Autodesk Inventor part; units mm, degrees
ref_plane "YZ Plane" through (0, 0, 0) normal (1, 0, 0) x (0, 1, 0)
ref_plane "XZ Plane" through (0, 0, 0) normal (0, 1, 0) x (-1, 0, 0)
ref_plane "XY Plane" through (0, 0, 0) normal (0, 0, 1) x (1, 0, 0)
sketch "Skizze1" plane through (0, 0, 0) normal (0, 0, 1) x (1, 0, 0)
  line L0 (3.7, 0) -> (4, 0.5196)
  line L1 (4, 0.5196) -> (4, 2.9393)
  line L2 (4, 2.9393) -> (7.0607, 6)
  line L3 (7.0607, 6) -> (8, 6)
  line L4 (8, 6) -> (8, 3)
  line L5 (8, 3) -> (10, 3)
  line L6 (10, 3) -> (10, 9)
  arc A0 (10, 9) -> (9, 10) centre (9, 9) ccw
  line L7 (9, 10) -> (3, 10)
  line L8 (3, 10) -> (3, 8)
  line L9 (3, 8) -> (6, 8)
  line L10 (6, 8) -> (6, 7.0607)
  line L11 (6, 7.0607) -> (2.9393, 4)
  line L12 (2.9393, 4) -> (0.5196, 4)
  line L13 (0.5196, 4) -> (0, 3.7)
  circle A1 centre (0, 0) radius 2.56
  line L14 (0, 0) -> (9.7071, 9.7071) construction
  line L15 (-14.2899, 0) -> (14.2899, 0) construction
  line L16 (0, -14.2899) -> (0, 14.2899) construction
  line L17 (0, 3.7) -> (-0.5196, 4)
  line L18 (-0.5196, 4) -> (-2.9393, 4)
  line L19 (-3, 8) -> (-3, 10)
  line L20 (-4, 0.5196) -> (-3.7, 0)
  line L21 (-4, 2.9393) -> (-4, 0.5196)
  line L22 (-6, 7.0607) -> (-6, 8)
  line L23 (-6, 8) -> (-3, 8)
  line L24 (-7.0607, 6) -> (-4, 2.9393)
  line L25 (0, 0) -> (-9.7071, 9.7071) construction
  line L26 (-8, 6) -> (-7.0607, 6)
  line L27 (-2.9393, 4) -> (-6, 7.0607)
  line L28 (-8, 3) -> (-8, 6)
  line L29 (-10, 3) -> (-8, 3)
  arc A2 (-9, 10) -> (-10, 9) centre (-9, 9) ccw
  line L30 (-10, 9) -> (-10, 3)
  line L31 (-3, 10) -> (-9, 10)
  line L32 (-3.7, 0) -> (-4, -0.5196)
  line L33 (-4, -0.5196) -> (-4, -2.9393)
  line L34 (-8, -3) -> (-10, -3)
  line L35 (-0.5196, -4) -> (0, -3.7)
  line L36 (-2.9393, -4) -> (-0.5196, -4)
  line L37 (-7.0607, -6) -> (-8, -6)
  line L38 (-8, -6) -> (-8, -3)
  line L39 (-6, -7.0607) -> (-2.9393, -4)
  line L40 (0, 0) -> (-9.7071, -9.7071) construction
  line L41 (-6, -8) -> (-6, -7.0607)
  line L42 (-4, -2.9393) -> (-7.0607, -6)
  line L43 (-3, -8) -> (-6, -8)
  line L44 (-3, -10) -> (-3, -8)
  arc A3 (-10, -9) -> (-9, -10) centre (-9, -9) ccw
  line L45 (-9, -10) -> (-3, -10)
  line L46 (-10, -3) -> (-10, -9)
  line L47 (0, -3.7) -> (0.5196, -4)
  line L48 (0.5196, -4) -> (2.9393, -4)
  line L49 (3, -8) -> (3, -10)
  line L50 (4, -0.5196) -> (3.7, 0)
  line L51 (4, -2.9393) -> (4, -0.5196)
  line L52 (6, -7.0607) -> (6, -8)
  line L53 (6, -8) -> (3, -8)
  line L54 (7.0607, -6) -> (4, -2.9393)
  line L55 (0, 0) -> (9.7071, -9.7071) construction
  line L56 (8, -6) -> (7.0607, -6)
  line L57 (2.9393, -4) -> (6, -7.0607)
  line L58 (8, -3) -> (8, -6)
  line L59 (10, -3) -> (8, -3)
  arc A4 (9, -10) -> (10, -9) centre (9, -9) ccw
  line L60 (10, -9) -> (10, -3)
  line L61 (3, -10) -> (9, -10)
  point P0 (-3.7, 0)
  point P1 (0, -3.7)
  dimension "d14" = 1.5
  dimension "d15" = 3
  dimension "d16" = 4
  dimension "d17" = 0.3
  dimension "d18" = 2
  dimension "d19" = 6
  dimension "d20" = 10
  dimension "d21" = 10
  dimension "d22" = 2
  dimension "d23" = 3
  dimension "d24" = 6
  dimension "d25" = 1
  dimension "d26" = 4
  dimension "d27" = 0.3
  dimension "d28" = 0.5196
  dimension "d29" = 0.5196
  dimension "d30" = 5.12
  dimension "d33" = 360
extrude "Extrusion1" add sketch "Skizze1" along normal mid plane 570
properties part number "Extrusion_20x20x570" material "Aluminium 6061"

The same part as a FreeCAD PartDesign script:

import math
import FreeCAD as App
import Part
import Sketcher

V = App.Vector
Q = App.Units.Quantity

doc = App.newDocument("Part")
body = doc.addObject("PartDesign::Body", "Body")

sketch1 = doc.addObject("Sketcher::SketchObject", "Sketch")
body.addObject(sketch1)
sketch1.AttachmentSupport = (doc.XY_Plane, [""])
sketch1.MapMode = "FlatFace"
sketch1.addGeometry(Part.LineSegment(V(4, -0.5, 0), V(3.7, 0, 0)), False)
sketch1.addGeometry(Part.LineSegment(V(3.7, 0, 0), V(4, 0.5, 0)), False)
sketch1.addGeometry(Part.LineSegment(V(4, 0.5, 0), V(4, 2.9, 0)), False)
sketch1.addGeometry(Part.LineSegment(V(4, 2.9, 0), V(7.1, 6, 0)), False)
sketch1.addGeometry(Part.LineSegment(V(7.1, 6, 0), V(8, 6, 0)), False)
sketch1.addGeometry(Part.LineSegment(V(8, 6, 0), V(8, 3, 0)), False)
sketch1.addGeometry(Part.LineSegment(V(8, 3, 0), V(10, 3, 0)), False)
sketch1.addGeometry(Part.LineSegment(V(10, 3, 0), V(10, 9, 0)), False)
sketch1.addGeometry(Part.ArcOfCircle(Part.Circle(V(9, 9, 0), V(0, 0, 1), 1), math.radians(0), math.radians(90)), False)
sketch1.addGeometry(Part.LineSegment(V(9, 10, 0), V(3, 10, 0)), False)
sketch1.addGeometry(Part.LineSegment(V(3, 10, 0), V(3, 8, 0)), False)
sketch1.addGeometry(Part.LineSegment(V(3, 8, 0), V(6, 8, 0)), False)
sketch1.addGeometry(Part.LineSegment(V(6, 8, 0), V(6, 7.1, 0)), False)
sketch1.addGeometry(Part.LineSegment(V(6, 7.1, 0), V(2.9, 4, 0)), False)
sketch1.addGeometry(Part.LineSegment(V(2.9, 4, 0), V(0.5, 4, 0)), False)
sketch1.addGeometry(Part.LineSegment(V(0.5, 4, 0), V(0, 3.7, 0)), False)
sketch1.addGeometry(Part.LineSegment(V(0, 3.7, 0), V(-0.5, 4, 0)), False)
sketch1.addGeometry(Part.LineSegment(V(-0.5, 4, 0), V(-2.9, 4, 0)), False)
sketch1.addGeometry(Part.LineSegment(V(-2.9, 4, 0), V(-6, 7.1, 0)), False)
sketch1.addGeometry(Part.LineSegment(V(-6, 7.1, 0), V(-6, 8, 0)), False)
sketch1.addGeometry(Part.LineSegment(V(-6, 8, 0), V(-3, 8, 0)), False)
sketch1.addGeometry(Part.LineSegment(V(-3, 8, 0), V(-3, 10, 0)), False)
sketch1.addGeometry(Part.LineSegment(V(-3, 10, 0), V(-9, 10, 0)), False)
sketch1.addGeometry(Part.ArcOfCircle(Part.Circle(V(-9, 9, 0), V(0, 0, 1), 1), math.radians(90), math.radians(180)), False)
sketch1.addGeometry(Part.LineSegment(V(-10, 9, 0), V(-10, 3, 0)), False)
sketch1.addGeometry(Part.LineSegment(V(-10, 3, 0), V(-8, 3, 0)), False)
sketch1.addGeometry(Part.LineSegment(V(-8, 3, 0), V(-8, 6, 0)), False)
sketch1.addGeometry(Part.LineSegment(V(-8, 6, 0), V(-7.1, 6, 0)), False)
sketch1.addGeometry(Part.LineSegment(V(-7.1, 6, 0), V(-4, 2.9, 0)), False)
sketch1.addGeometry(Part.LineSegment(V(-4, 2.9, 0), V(-4, 0.5, 0)), False)
sketch1.addGeometry(Part.LineSegment(V(-4, 0.5, 0), V(-3.7, 0, 0)), False)
sketch1.addGeometry(Part.LineSegment(V(-3.7, 0, 0), V(-4, -0.5, 0)), False)
sketch1.addGeometry(Part.LineSegment(V(-4, -0.5, 0), V(-4, -2.9, 0)), False)
sketch1.addGeometry(Part.LineSegment(V(-4, -2.9, 0), V(-7.1, -6, 0)), False)
sketch1.addGeometry(Part.LineSegment(V(-7.1, -6, 0), V(-8, -6, 0)), False)
sketch1.addGeometry(Part.LineSegment(V(-8, -6, 0), V(-8, -3, 0)), False)
sketch1.addGeometry(Part.LineSegment(V(-8, -3, 0), V(-10, -3, 0)), False)
sketch1.addGeometry(Part.LineSegment(V(-10, -3, 0), V(-10, -9, 0)), False)
sketch1.addGeometry(Part.ArcOfCircle(Part.Circle(V(-9, -9, 0), V(0, 0, 1), 1), math.radians(180), math.radians(270)), False)
sketch1.addGeometry(Part.LineSegment(V(-9, -10, 0), V(-3, -10, 0)), False)
sketch1.addGeometry(Part.LineSegment(V(-3, -10, 0), V(-3, -8, 0)), False)
sketch1.addGeometry(Part.LineSegment(V(-3, -8, 0), V(-6, -8, 0)), False)
sketch1.addGeometry(Part.LineSegment(V(-6, -8, 0), V(-6, -7.1, 0)), False)
sketch1.addGeometry(Part.LineSegment(V(-6, -7.1, 0), V(-2.9, -4, 0)), False)
sketch1.addGeometry(Part.LineSegment(V(-2.9, -4, 0), V(-0.5, -4, 0)), False)
sketch1.addGeometry(Part.LineSegment(V(-0.5, -4, 0), V(0, -3.7, 0)), False)
sketch1.addGeometry(Part.LineSegment(V(0, -3.7, 0), V(0.5, -4, 0)), False)
sketch1.addGeometry(Part.LineSegment(V(0.5, -4, 0), V(2.9, -4, 0)), False)
sketch1.addGeometry(Part.LineSegment(V(2.9, -4, 0), V(6, -7.1, 0)), False)
sketch1.addGeometry(Part.LineSegment(V(6, -7.1, 0), V(6, -8, 0)), False)
sketch1.addGeometry(Part.LineSegment(V(6, -8, 0), V(3, -8, 0)), False)
sketch1.addGeometry(Part.LineSegment(V(3, -8, 0), V(3, -10, 0)), False)
sketch1.addGeometry(Part.LineSegment(V(3, -10, 0), V(9, -10, 0)), False)
sketch1.addGeometry(Part.ArcOfCircle(Part.Circle(V(9, -9, 0), V(0, 0, 1), 1), math.radians(-90), math.radians(0)), False)
sketch1.addGeometry(Part.LineSegment(V(10, -9, 0), V(10, -3, 0)), False)
sketch1.addGeometry(Part.LineSegment(V(10, -3, 0), V(8, -3, 0)), False)
sketch1.addGeometry(Part.LineSegment(V(8, -3, 0), V(8, -6, 0)), False)
sketch1.addGeometry(Part.LineSegment(V(8, -6, 0), V(7.1, -6, 0)), False)
sketch1.addGeometry(Part.LineSegment(V(7.1, -6, 0), V(4, -2.9, 0)), False)
sketch1.addGeometry(Part.LineSegment(V(4, -2.9, 0), V(4, -0.5, 0)), False)
sketch1.addGeometry(Part.Circle(V(0, 0, 0), V(0, 0, 1), 2.6), False)
sketch1.addConstraint(Sketcher.Constraint("Coincident", 0, 2, 1, 1))
sketch1.addConstraint(Sketcher.Constraint("Coincident", 1, 2, 2, 1))
sketch1.addConstraint(Sketcher.Constraint("Coincident", 2, 2, 3, 1))
sketch1.addConstraint(Sketcher.Constraint("Coincident", 3, 2, 4, 1))
sketch1.addConstraint(Sketcher.Constraint("Coincident", 4, 2, 5, 1))
sketch1.addConstraint(Sketcher.Constraint("Coincident", 5, 2, 6, 1))
sketch1.addConstraint(Sketcher.Constraint("Coincident", 6, 2, 7, 1))
sketch1.addConstraint(Sketcher.Constraint("Tangent", 7, 2, 8, 1))
sketch1.addConstraint(Sketcher.Constraint("Tangent", 8, 2, 9, 1))
sketch1.addConstraint(Sketcher.Constraint("Coincident", 9, 2, 10, 1))
sketch1.addConstraint(Sketcher.Constraint("Coincident", 10, 2, 11, 1))
sketch1.addConstraint(Sketcher.Constraint("Coincident", 11, 2, 12, 1))
sketch1.addConstraint(Sketcher.Constraint("Coincident", 12, 2, 13, 1))
sketch1.addConstraint(Sketcher.Constraint("Coincident", 13, 2, 14, 1))
sketch1.addConstraint(Sketcher.Constraint("Coincident", 14, 2, 15, 1))
sketch1.addConstraint(Sketcher.Constraint("Coincident", 15, 2, 16, 1))
sketch1.addConstraint(Sketcher.Constraint("Coincident", 16, 2, 17, 1))
sketch1.addConstraint(Sketcher.Constraint("Coincident", 17, 2, 18, 1))
sketch1.addConstraint(Sketcher.Constraint("Coincident", 18, 2, 19, 1))
sketch1.addConstraint(Sketcher.Constraint("Coincident", 19, 2, 20, 1))
sketch1.addConstraint(Sketcher.Constraint("Coincident", 20, 2, 21, 1))
sketch1.addConstraint(Sketcher.Constraint("Coincident", 21, 2, 22, 1))
sketch1.addConstraint(Sketcher.Constraint("Tangent", 22, 2, 23, 1))
sketch1.addConstraint(Sketcher.Constraint("Tangent", 23, 2, 24, 1))
sketch1.addConstraint(Sketcher.Constraint("Coincident", 24, 2, 25, 1))
sketch1.addConstraint(Sketcher.Constraint("Coincident", 25, 2, 26, 1))
sketch1.addConstraint(Sketcher.Constraint("Coincident", 26, 2, 27, 1))
sketch1.addConstraint(Sketcher.Constraint("Coincident", 27, 2, 28, 1))
sketch1.addConstraint(Sketcher.Constraint("Coincident", 28, 2, 29, 1))
sketch1.addConstraint(Sketcher.Constraint("Coincident", 29, 2, 30, 1))
sketch1.addConstraint(Sketcher.Constraint("Coincident", 30, 2, 31, 1))
sketch1.addConstraint(Sketcher.Constraint("Coincident", 31, 2, 32, 1))
sketch1.addConstraint(Sketcher.Constraint("Coincident", 32, 2, 33, 1))
sketch1.addConstraint(Sketcher.Constraint("Coincident", 33, 2, 34, 1))
sketch1.addConstraint(Sketcher.Constraint("Coincident", 34, 2, 35, 1))
sketch1.addConstraint(Sketcher.Constraint("Coincident", 35, 2, 36, 1))
sketch1.addConstraint(Sketcher.Constraint("Coincident", 36, 2, 37, 1))
sketch1.addConstraint(Sketcher.Constraint("Tangent", 37, 2, 38, 1))
sketch1.addConstraint(Sketcher.Constraint("Tangent", 38, 2, 39, 1))
sketch1.addConstraint(Sketcher.Constraint("Coincident", 39, 2, 40, 1))
sketch1.addConstraint(Sketcher.Constraint("Coincident", 40, 2, 41, 1))
sketch1.addConstraint(Sketcher.Constraint("Coincident", 41, 2, 42, 1))
sketch1.addConstraint(Sketcher.Constraint("Coincident", 42, 2, 43, 1))
sketch1.addConstraint(Sketcher.Constraint("Coincident", 43, 2, 44, 1))
sketch1.addConstraint(Sketcher.Constraint("Coincident", 44, 2, 45, 1))
sketch1.addConstraint(Sketcher.Constraint("Coincident", 45, 2, 46, 1))
sketch1.addConstraint(Sketcher.Constraint("Coincident", 46, 2, 47, 1))
sketch1.addConstraint(Sketcher.Constraint("Coincident", 47, 2, 48, 1))
sketch1.addConstraint(Sketcher.Constraint("Coincident", 48, 2, 49, 1))
sketch1.addConstraint(Sketcher.Constraint("Coincident", 49, 2, 50, 1))
sketch1.addConstraint(Sketcher.Constraint("Coincident", 50, 2, 51, 1))
sketch1.addConstraint(Sketcher.Constraint("Coincident", 51, 2, 52, 1))
sketch1.addConstraint(Sketcher.Constraint("Tangent", 52, 2, 53, 1))
sketch1.addConstraint(Sketcher.Constraint("Tangent", 53, 2, 54, 1))
sketch1.addConstraint(Sketcher.Constraint("Coincident", 54, 2, 55, 1))
sketch1.addConstraint(Sketcher.Constraint("Coincident", 55, 2, 56, 1))
sketch1.addConstraint(Sketcher.Constraint("Coincident", 56, 2, 57, 1))
sketch1.addConstraint(Sketcher.Constraint("Coincident", 57, 2, 58, 1))
sketch1.addConstraint(Sketcher.Constraint("Coincident", 58, 2, 59, 1))
sketch1.addConstraint(Sketcher.Constraint("Coincident", 59, 2, 0, 1))
sketch1.addConstraint(Sketcher.Constraint("Vertical", 2))
sketch1.addConstraint(Sketcher.Constraint("Horizontal", 4))
sketch1.addConstraint(Sketcher.Constraint("Vertical", 5))
sketch1.addConstraint(Sketcher.Constraint("Horizontal", 6))
sketch1.addConstraint(Sketcher.Constraint("Vertical", 7))
sketch1.addConstraint(Sketcher.Constraint("Horizontal", 9))
sketch1.addConstraint(Sketcher.Constraint("Vertical", 10))
sketch1.addConstraint(Sketcher.Constraint("Horizontal", 11))
sketch1.addConstraint(Sketcher.Constraint("Vertical", 12))
sketch1.addConstraint(Sketcher.Constraint("Horizontal", 14))
sketch1.addConstraint(Sketcher.Constraint("Horizontal", 17))
sketch1.addConstraint(Sketcher.Constraint("Vertical", 19))
sketch1.addConstraint(Sketcher.Constraint("Horizontal", 20))
sketch1.addConstraint(Sketcher.Constraint("Vertical", 21))
sketch1.addConstraint(Sketcher.Constraint("Horizontal", 22))
sketch1.addConstraint(Sketcher.Constraint("Vertical", 24))
sketch1.addConstraint(Sketcher.Constraint("Horizontal", 25))
sketch1.addConstraint(Sketcher.Constraint("Vertical", 26))
sketch1.addConstraint(Sketcher.Constraint("Horizontal", 27))
sketch1.addConstraint(Sketcher.Constraint("Vertical", 29))
sketch1.addConstraint(Sketcher.Constraint("Vertical", 32))
sketch1.addConstraint(Sketcher.Constraint("Horizontal", 34))
sketch1.addConstraint(Sketcher.Constraint("Vertical", 35))
sketch1.addConstraint(Sketcher.Constraint("Horizontal", 36))
sketch1.addConstraint(Sketcher.Constraint("Vertical", 37))
sketch1.addConstraint(Sketcher.Constraint("Horizontal", 39))
sketch1.addConstraint(Sketcher.Constraint("Vertical", 40))
sketch1.addConstraint(Sketcher.Constraint("Horizontal", 41))
sketch1.addConstraint(Sketcher.Constraint("Vertical", 42))
sketch1.addConstraint(Sketcher.Constraint("Horizontal", 44))
sketch1.addConstraint(Sketcher.Constraint("Horizontal", 47))
sketch1.addConstraint(Sketcher.Constraint("Vertical", 49))
sketch1.addConstraint(Sketcher.Constraint("Horizontal", 50))
sketch1.addConstraint(Sketcher.Constraint("Vertical", 51))
sketch1.addConstraint(Sketcher.Constraint("Horizontal", 52))
sketch1.addConstraint(Sketcher.Constraint("Vertical", 54))
sketch1.addConstraint(Sketcher.Constraint("Horizontal", 55))
sketch1.addConstraint(Sketcher.Constraint("Vertical", 56))
sketch1.addConstraint(Sketcher.Constraint("Horizontal", 57))
sketch1.addConstraint(Sketcher.Constraint("Vertical", 59))
sketch1.addConstraint(Sketcher.Constraint("Coincident", 60, 3, -1, 1))
sketch1.addConstraint(Sketcher.Constraint("Equal", 8, 23))
sketch1.addConstraint(Sketcher.Constraint("Equal", 23, 38))
sketch1.addConstraint(Sketcher.Constraint("Equal", 38, 53))
sketch1.addConstraint(Sketcher.Constraint("Symmetric", 8, 3, 38, 3, -1, 1))
sketch1.addConstraint(Sketcher.Constraint("Symmetric", 23, 3, 53, 3, -1, 1))
sketch1.addConstraint(Sketcher.Constraint("Symmetric", 0, 2, 30, 2, -1, 1))
sketch1.addConstraint(Sketcher.Constraint("Symmetric", 1, 2, 31, 2, -1, 1))
sketch1.addConstraint(Sketcher.Constraint("Symmetric", 3, 2, 33, 2, -1, 1))
sketch1.addConstraint(Sketcher.Constraint("Symmetric", 5, 2, 35, 2, -1, 1))
sketch1.addConstraint(Sketcher.Constraint("Symmetric", 10, 2, 40, 2, -1, 1))
sketch1.addConstraint(Sketcher.Constraint("Symmetric", 12, 2, 42, 2, -1, 1))
sketch1.addConstraint(Sketcher.Constraint("Symmetric", 13, 2, 43, 2, -1, 1))
sketch1.addConstraint(Sketcher.Constraint("Symmetric", 15, 2, 45, 2, -1, 1))
sketch1.addConstraint(Sketcher.Constraint("Symmetric", 16, 2, 46, 2, -1, 1))
sketch1.addConstraint(Sketcher.Constraint("Symmetric", 18, 2, 48, 2, -1, 1))
sketch1.addConstraint(Sketcher.Constraint("Symmetric", 20, 2, 50, 2, -1, 1))
sketch1.addConstraint(Sketcher.Constraint("Symmetric", 25, 2, 55, 2, -1, 1))
sketch1.addConstraint(Sketcher.Constraint("Symmetric", 27, 2, 57, 2, -1, 1))
sketch1.addConstraint(Sketcher.Constraint("Symmetric", 28, 2, 58, 2, -1, 1))
sketch1.addConstraint(Sketcher.Constraint("Symmetric", 8, 3, 23, 3, -2))
sketch1.addConstraint(Sketcher.Constraint("Symmetric", 14, 2, 16, 2, -2))
sketch1.addConstraint(Sketcher.Constraint("Symmetric", 12, 2, 18, 2, -2))
sketch1.addConstraint(Sketcher.Constraint("Symmetric", 10, 2, 20, 2, -2))
sketch1.addConstraint(Sketcher.Constraint("Symmetric", 5, 2, 25, 2, -2))
sketch1.addConstraint(Sketcher.Constraint("Symmetric", 3, 2, 27, 2, -2))
sketch1.addConstraint(Sketcher.Constraint("Symmetric", 2, 2, 28, 2, -2))
sketch1.addConstraint(Sketcher.Constraint("PointOnObject", 0, 2, -1))
sketch1.addConstraint(Sketcher.Constraint("PointOnObject", 15, 2, -2))
sketch1.addConstraint(Sketcher.Constraint("Parallel", 3, 13))
sketch1.addConstraint(Sketcher.Constraint("Perpendicular", 0, 15))
sketch1.addConstraint(Sketcher.Constraint("Perpendicular", 1, 16))
sketch1.addConstraint(Sketcher.Constraint("Perpendicular", 13, 18))
sketch1.addConstraint(Sketcher.Constraint("Parallel", 18, 28))
sketch1.addConstraint(Sketcher.Constraint("Perpendicular", 15, 30))
sketch1.addConstraint(Sketcher.Constraint("Perpendicular", 28, 33))
sketch1.addConstraint(Sketcher.Constraint("Perpendicular", 30, 45))
sketch1.addConstraint(Sketcher.Constraint("Perpendicular", 43, 48))
sketch1.addConstraint(Sketcher.Constraint("Equal", 47, 2))
sketch1.addConstraint(Sketcher.Constraint("Equal", 50, 5))
sketch1.addConstraint(Sketcher.Constraint("Equal", 52, 7))
sketch1.addConstraint(Sketcher.Constraint("Equal", 55, 10))
sketch1.addConstraint(Sketcher.Constraint("Equal", 57, 12))
sketch1.addConstraint(Sketcher.Constraint("Equal", 3, 13))
sketch1.addConstraint(Sketcher.Constraint("Equal", 1, 15))
sketch1.addConstraint(Sketcher.Constraint("Radius", 8, Q("1 mm")))
sketch1.addConstraint(Sketcher.Constraint("Diameter", 60, Q("5.12 mm")))
sketch1.addConstraint(Sketcher.Constraint("DistanceX", 6, 1, 6, 2, Q("2 mm")))
sketch1.addConstraint(Sketcher.Constraint("DistanceX", 9, 2, 9, 1, Q("6 mm")))
sketch1.addConstraint(Sketcher.Constraint("DistanceX", 11, 1, 11, 2, Q("3 mm")))
sketch1.addConstraint(Sketcher.Constraint("DistanceX", -1, 1, 1, 2, Q("4 mm")))
sketch1.addConstraint(Sketcher.Constraint("DistanceY", -1, 1, 3, 2, Q("6 mm")))
sketch1.addConstraint(Sketcher.Constraint("Angle", 0, Q("120.0007 deg")))
sketch1.addConstraint(Sketcher.Constraint("Distance", 0, Q("0.6 mm")))
sketch1.addConstraint(Sketcher.Constraint("DistanceX", 4, 1, 4, 2, Q("0.9393 mm")))
pad1 = doc.addObject("PartDesign::Pad", "Pad")
body.addObject(pad1)
pad1.Profile = sketch1
pad1.Length = 570
pad1.Midplane = True

doc.recompute()
